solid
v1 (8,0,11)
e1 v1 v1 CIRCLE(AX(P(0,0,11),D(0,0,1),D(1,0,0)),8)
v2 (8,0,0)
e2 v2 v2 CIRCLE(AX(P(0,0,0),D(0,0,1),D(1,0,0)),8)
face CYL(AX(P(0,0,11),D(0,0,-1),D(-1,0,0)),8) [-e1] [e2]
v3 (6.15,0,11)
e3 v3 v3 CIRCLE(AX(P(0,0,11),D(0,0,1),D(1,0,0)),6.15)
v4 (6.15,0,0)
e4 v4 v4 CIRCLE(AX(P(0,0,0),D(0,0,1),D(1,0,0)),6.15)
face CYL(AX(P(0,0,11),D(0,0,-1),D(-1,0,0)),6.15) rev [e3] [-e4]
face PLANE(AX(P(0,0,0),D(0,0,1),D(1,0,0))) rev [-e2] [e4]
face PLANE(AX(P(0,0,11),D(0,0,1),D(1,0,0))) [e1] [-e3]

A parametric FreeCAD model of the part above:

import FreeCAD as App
import Part
import Sketcher
from FreeCAD import Vector

doc = App.newDocument("Part")
params = doc.addObject("Spreadsheet::Sheet", "Params")
for row, (alias, value) in enumerate([
    ("sketch1_diameter", "16 mm"),
    ("sketch1_diameter2", "12.3 mm"),
    ("pad1_length", "11 mm"),
], start=1):
    params.set(f"A{row}", alias)
    params.set(f"B{row}", "=" + value)
    params.setAlias(f"B{row}", alias)

body = doc.addObject("PartDesign::Body", "Body")

# Sketch on XY plane
sketch1 = body.newObject("Sketcher::SketchObject", "Sketch")
sketch1.AttachmentSupport = (doc.getObject("XY_Plane"), [""])
sketch1.MapMode = "FlatFace"
sketch1.addGeometry([
    Part.Circle(Vector(0, 0, 0), Vector(0, 0, 1), 8),
    Part.Circle(Vector(0, 0, 0), Vector(0, 0, 1), 6),
], False)
sketch1.addConstraint([
    Sketcher.Constraint("Coincident", 0, 3, -1, 1),
    Sketcher.Constraint("Coincident", 1, 3, -1, 1),
    Sketcher.Constraint("Diameter", 0, 16.0),
    Sketcher.Constraint("Diameter", 1, 12.3),
])
sketch1.setExpression("Constraints[2]", "Params.sketch1_diameter")
sketch1.setExpression("Constraints[3]", "Params.sketch1_diameter2")
pad1 = body.newObject("PartDesign::Pad", "Pad")
pad1.Profile = sketch1
pad1.setExpression("Length", "Params.pad1_length")

doc.recompute()
